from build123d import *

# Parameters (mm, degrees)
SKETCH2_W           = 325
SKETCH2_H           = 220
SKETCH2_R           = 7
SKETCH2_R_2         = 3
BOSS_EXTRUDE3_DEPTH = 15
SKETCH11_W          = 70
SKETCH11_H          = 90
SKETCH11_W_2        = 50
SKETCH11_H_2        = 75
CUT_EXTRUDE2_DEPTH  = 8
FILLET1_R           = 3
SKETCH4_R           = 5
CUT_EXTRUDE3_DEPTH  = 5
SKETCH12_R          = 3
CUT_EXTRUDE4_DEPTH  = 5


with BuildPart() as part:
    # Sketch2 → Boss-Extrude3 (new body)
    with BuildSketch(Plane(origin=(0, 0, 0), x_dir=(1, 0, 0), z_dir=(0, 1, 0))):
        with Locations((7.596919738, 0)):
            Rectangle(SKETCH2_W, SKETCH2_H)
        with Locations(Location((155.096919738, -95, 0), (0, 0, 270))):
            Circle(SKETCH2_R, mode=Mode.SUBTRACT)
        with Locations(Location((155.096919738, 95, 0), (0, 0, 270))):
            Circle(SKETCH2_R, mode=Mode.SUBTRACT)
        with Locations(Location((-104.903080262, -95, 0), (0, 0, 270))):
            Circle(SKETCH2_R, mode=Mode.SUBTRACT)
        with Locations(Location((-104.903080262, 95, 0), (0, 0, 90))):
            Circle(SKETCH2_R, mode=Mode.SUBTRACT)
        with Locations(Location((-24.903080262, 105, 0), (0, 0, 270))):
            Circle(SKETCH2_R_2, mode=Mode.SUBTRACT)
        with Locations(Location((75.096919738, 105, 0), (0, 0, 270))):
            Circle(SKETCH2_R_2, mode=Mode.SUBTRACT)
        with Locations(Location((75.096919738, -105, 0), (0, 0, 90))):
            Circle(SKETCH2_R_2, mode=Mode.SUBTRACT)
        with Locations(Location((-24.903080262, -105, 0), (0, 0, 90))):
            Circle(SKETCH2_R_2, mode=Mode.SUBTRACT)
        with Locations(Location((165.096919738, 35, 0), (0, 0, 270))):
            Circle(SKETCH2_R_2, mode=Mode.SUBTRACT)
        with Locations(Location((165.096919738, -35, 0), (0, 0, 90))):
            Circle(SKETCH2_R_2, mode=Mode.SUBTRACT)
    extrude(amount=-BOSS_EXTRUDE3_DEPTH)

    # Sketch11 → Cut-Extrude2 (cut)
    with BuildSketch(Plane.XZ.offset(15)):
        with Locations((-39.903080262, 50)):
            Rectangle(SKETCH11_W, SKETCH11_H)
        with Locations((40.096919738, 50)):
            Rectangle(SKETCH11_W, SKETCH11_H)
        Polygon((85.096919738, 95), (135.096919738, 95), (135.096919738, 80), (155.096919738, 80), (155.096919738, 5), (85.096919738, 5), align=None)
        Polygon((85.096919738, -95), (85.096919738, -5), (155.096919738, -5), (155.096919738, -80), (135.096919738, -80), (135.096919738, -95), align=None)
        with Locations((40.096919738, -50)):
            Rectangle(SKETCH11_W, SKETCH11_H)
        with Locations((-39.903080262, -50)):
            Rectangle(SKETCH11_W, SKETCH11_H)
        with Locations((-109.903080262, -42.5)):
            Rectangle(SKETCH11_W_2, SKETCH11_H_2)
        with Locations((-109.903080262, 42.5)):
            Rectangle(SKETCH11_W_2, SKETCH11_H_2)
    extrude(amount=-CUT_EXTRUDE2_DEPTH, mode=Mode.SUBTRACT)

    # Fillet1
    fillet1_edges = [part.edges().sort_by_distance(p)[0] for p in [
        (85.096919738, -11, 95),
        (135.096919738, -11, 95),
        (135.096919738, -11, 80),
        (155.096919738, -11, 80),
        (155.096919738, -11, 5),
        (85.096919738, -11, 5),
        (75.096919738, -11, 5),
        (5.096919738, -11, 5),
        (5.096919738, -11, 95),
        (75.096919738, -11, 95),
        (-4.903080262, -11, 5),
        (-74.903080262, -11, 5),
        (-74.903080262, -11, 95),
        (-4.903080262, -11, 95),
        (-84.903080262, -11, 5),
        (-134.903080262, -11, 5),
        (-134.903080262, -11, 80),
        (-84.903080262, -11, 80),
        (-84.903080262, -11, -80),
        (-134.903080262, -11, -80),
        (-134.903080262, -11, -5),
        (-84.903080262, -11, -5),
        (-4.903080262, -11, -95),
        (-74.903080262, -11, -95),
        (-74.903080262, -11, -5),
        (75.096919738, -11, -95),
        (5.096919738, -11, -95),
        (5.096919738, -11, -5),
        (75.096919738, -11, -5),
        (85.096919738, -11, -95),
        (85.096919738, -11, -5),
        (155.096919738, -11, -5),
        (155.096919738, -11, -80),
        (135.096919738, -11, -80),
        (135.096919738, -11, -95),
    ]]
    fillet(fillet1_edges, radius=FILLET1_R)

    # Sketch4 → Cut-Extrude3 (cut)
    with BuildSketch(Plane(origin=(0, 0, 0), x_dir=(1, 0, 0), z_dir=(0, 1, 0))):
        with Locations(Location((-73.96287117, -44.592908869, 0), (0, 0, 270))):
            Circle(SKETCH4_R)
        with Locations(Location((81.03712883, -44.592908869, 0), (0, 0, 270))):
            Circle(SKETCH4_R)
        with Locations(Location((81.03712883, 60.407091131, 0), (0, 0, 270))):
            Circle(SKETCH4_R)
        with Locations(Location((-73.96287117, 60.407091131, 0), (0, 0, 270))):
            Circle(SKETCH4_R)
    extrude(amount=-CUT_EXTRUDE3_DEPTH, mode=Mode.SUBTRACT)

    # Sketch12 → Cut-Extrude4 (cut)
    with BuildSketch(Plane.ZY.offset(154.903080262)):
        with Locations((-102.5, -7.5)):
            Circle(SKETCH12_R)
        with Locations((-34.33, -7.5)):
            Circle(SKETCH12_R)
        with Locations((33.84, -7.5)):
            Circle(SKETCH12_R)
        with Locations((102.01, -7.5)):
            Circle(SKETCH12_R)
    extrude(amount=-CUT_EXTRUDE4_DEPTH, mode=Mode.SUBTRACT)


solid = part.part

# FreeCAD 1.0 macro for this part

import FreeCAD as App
import Part
import Sketcher
from FreeCAD import Vector
Q = App.Units.Quantity


def edges_at(feature, points):
    """Names of the edges that pass closest to the given points."""
    edges = feature.Shape.Edges
    near = lambda p: min(range(len(edges)), key=lambda i: edges[i].distToShape(Part.Vertex(*p))[0])
    return sorted({f"Edge{near(p) + 1}" for p in points})

doc = App.newDocument("Part")
body = doc.addObject("PartDesign::Body", "Body")

sketch1 = body.newObject("Sketcher::SketchObject", "Sketch")
sketch1.AttachmentSupport = (doc.getObject("XZ_Plane"), [""])
sketch1.MapMode = "FlatFace"
sketch1.addGeometry(Part.LineSegment(Vector(-154.9, -110, 0), Vector(-154.9, 110, 0)), False)
sketch1.addGeometry(Part.LineSegment(Vector(-154.9, 110, 0), Vector(170.1, 110, 0)), False)
sketch1.addGeometry(Part.LineSegment(Vector(170.1, 110, 0), Vector(170.1, -110, 0)), False)
sketch1.addGeometry(Part.LineSegment(Vector(170.1, -110, 0), Vector(-154.9, -110, 0)), False)
sketch1.addGeometry(Part.Circle(Vector(-104.9, 95, 0), Vector(0, 0, 1), 7), False)
sketch1.addGeometry(Part.Circle(Vector(-24.9, 105, 0), Vector(0, 0, 1), 3), False)
sketch1.addGeometry(Part.Circle(Vector(75.1, 105, 0), Vector(0, 0, 1), 3), False)
sketch1.addGeometry(Part.Circle(Vector(155.1, 95, 0), Vector(0, 0, 1), 7), False)
sketch1.addGeometry(Part.Circle(Vector(165.1, 35, 0), Vector(0, 0, 1), 3), False)
sketch1.addGeometry(Part.Circle(Vector(-104.9, -95, 0), Vector(0, 0, 1), 7), False)
sketch1.addGeometry(Part.Circle(Vector(-24.9, -105, 0), Vector(0, 0, 1), 3), False)
sketch1.addGeometry(Part.Circle(Vector(165.1, -35, 0), Vector(0, 0, 1), 3), False)
sketch1.addGeometry(Part.Circle(Vector(75.1, -105, 0), Vector(0, 0, 1), 3), False)
sketch1.addGeometry(Part.Circle(Vector(155.1, -95, 0), Vector(0, 0, 1), 7), False)
sketch1.addConstraint(Sketcher.Constraint("Coincident", 0, 2, 1, 1))
sketch1.addConstraint(Sketcher.Constraint("Coincident", 1, 2, 2, 1))
sketch1.addConstraint(Sketcher.Constraint("Coincident", 2, 2, 3, 1))
sketch1.addConstraint(Sketcher.Constraint("Coincident", 3, 2, 0, 1))
sketch1.addConstraint(Sketcher.Constraint("Vertical", 0))
sketch1.addConstraint(Sketcher.Constraint("Horizontal", 1))
sketch1.addConstraint(Sketcher.Constraint("Vertical", 2))
sketch1.addConstraint(Sketcher.Constraint("Horizontal", 3))
sketch1.addConstraint(Sketcher.Constraint("Equal", 5, 6))
sketch1.addConstraint(Sketcher.Constraint("Equal", 4, 7))
sketch1.addConstraint(Sketcher.Constraint("Equal", 6, 8))
sketch1.addConstraint(Sketcher.Constraint("Equal", 7, 9))
sketch1.addConstraint(Sketcher.Constraint("Equal", 8, 10))
sketch1.addConstraint(Sketcher.Constraint("Equal", 10, 11))
sketch1.addConstraint(Sketcher.Constraint("Equal", 11, 12))
sketch1.addConstraint(Sketcher.Constraint("Equal", 9, 13))
sketch1.addConstraint(Sketcher.Constraint("Symmetric", 4, 3, 9, 3, -1))
sketch1.addConstraint(Sketcher.Constraint("Symmetric", 5, 3, 10, 3, -1))
sketch1.addConstraint(Sketcher.Constraint("Symmetric", 8, 3, 11, 3, -1))
sketch1.addConstraint(Sketcher.Constraint("Symmetric", 6, 3, 12, 3, -1))
sketch1.addConstraint(Sketcher.Constraint("Symmetric", 7, 3, 13, 3, -1))
sketch1.addConstraint(Sketcher.Constraint("Horizontal", 5, 3, 6, 3))
sketch1.addConstraint(Sketcher.Constraint("Horizontal", 4, 3, 7, 3))
sketch1.addConstraint(Sketcher.Constraint("Diameter", 4, Q("14 mm")))
sketch1.addConstraint(Sketcher.Constraint("Diameter", 5, Q("6 mm")))
sketch1.addConstraint(Sketcher.Constraint("DistanceX", 1, 1, 1, 2, Q("325 mm")))
sketch1.addConstraint(Sketcher.Constraint("DistanceY", 0, 1, 0, 2, Q("220 mm")))
sketch1.addConstraint(Sketcher.Constraint("DistanceY", -1, 1, 4, 3, Q("95 mm")))
sketch1.addConstraint(Sketcher.Constraint("DistanceY", -1, 1, 5, 3, Q("105 mm")))
sketch1.addConstraint(Sketcher.Constraint("DistanceY", -1, 1, 8, 3, Q("35 mm")))
sketch1.addConstraint(Sketcher.Constraint("DistanceY", -1, 1, 0, 2, Q("110 mm")))
sketch1.addConstraint(Sketcher.Constraint("DistanceX", 4, 3, 5, 3, Q("80 mm")))
sketch1.addConstraint(Sketcher.Constraint("DistanceX", 5, 3, 6, 3, Q("100 mm")))
sketch1.addConstraint(Sketcher.Constraint("DistanceX", 6, 3, 7, 3, Q("80 mm")))
sketch1.addConstraint(Sketcher.Constraint("DistanceX", 7, 3, 8, 3, Q("10 mm")))
sketch1.addConstraint(Sketcher.Constraint("DistanceX", 0, 2, 4, 3, Q("50 mm")))
sketch1.addConstraint(Sketcher.Constraint("DistanceX", 4, 3, -1, 1, Q("104.90308 mm")))
pad1 = body.newObject("PartDesign::Pad", "Pad")
pad1.Profile = sketch1
pad1.Length = 15

sketch2 = body.newObject("Sketcher::SketchObject", "Sketch001")
sketch2.AttachmentSupport = (doc.getObject("XZ_Plane"), [""])
sketch2.MapMode = "FlatFace"
sketch2.AttachmentOffset = App.Placement(Vector(0, 0, 15), App.Rotation())
sketch2.addGeometry(Part.LineSegment(Vector(-75, 95, 0), Vector(-75, 5, 0)), False)
sketch2.addGeometry(Part.LineSegment(Vector(-75, 5, 0), Vector(-5, 5, 0)), False)
sketch2.addGeometry(Part.LineSegment(Vector(-5, 5, 0), Vector(-5, 95, 0)), False)
sketch2.addGeometry(Part.LineSegment(Vector(-5, 95, 0), Vector(-75, 95, 0)), False)
sketch2.addGeometry(Part.LineSegment(Vector(5, 95, 0), Vector(5, 5, 0)), False)
sketch2.addGeometry(Part.LineSegment(Vector(5, 5, 0), Vector(75, 5, 0)), False)
sketch2.addGeometry(Part.LineSegment(Vector(75, 5, 0), Vector(75, 95, 0)), False)
sketch2.addGeometry(Part.LineSegment(Vector(75, 95, 0), Vector(5, 95, 0)), False)
sketch2.addGeometry(Part.LineSegment(Vector(135, 95, 0), Vector(85, 95, 0)), False)
sketch2.addGeometry(Part.LineSegment(Vector(85, 95, 0), Vector(85, 5, 0)), False)
sketch2.addGeometry(Part.LineSegment(Vector(85, 5, 0), Vector(155, 5, 0)), False)
sketch2.addGeometry(Part.LineSegment(Vector(155, 5, 0), Vector(155, 80, 0)), False)
sketch2.addGeometry(Part.LineSegment(Vector(155, 80, 0), Vector(135, 80, 0)), False)
sketch2.addGeometry(Part.LineSegment(Vector(135, 80, 0), Vector(135, 95, 0)), False)
sketch2.addGeometry(Part.LineSegment(Vector(85, -5, 0), Vector(85, -95, 0)), False)
sketch2.addGeometry(Part.LineSegment(Vector(85, -95, 0), Vector(135, -95, 0)), False)
sketch2.addGeometry(Part.LineSegment(Vector(135, -95, 0), Vector(135, -80, 0)), False)
sketch2.addGeometry(Part.LineSegment(Vector(135, -80, 0), Vector(155, -80, 0)), False)
sketch2.addGeometry(Part.LineSegment(Vector(155, -80, 0), Vector(155, -5, 0)), False)
sketch2.addGeometry(Part.LineSegment(Vector(155, -5, 0), Vector(85, -5, 0)), False)
sketch2.addGeometry(Part.LineSegment(Vector(5, -5, 0), Vector(5, -95, 0)), False)
sketch2.addGeometry(Part.LineSegment(Vector(5, -95, 0), Vector(75, -95, 0)), False)
sketch2.addGeometry(Part.LineSegment(Vector(75, -95, 0), Vector(75, -5, 0)), False)
sketch2.addGeometry(Part.LineSegment(Vector(75, -5, 0), Vector(5, -5, 0)), False)
sketch2.addGeometry(Part.LineSegment(Vector(-75, -5, 0), Vector(-75, -95, 0)), False)
sketch2.addGeometry(Part.LineSegment(Vector(-75, -95, 0), Vector(-5, -95, 0)), False)
sketch2.addGeometry(Part.LineSegment(Vector(-5, -95, 0), Vector(-5, -5, 0)), False)
sketch2.addGeometry(Part.LineSegment(Vector(-5, -5, 0), Vector(-75, -5, 0)), False)
sketch2.addGeometry(Part.LineSegment(Vector(-135, -5, 0), Vector(-135, -80, 0)), False)
sketch2.addGeometry(Part.LineSegment(Vector(-135, -80, 0), Vector(-85, -80, 0)), False)
sketch2.addGeometry(Part.LineSegment(Vector(-85, -80, 0), Vector(-85, -5, 0)), False)
sketch2.addGeometry(Part.LineSegment(Vector(-85, -5, 0), Vector(-135, -5, 0)), False)
sketch2.addGeometry(Part.LineSegment(Vector(-135, 80, 0), Vector(-135, 5, 0)), False)
sketch2.addGeometry(Part.LineSegment(Vector(-135, 5, 0), Vector(-85, 5, 0)), False)
sketch2.addGeometry(Part.LineSegment(Vector(-85, 5, 0), Vector(-85, 80, 0)), False)
sketch2.addGeometry(Part.LineSegment(Vector(-85, 80, 0), Vector(-135, 80, 0)), False)
sketch2.addConstraint(Sketcher.Constraint("Coincident", 0, 2, 1, 1))
sketch2.addConstraint(Sketcher.Constraint("Coincident", 1, 2, 2, 1))
sketch2.addConstraint(Sketcher.Constraint("Coincident", 2, 2, 3, 1))
sketch2.addConstraint(Sketcher.Constraint("Coincident", 3, 2, 0, 1))
sketch2.addConstraint(Sketcher.Constraint("Coincident", 4, 2, 5, 1))
sketch2.addConstraint(Sketcher.Constraint("Coincident", 5, 2, 6, 1))
sketch2.addConstraint(Sketcher.Constraint("Coincident", 6, 2, 7, 1))
sketch2.addConstraint(Sketcher.Constraint("Coincident", 7, 2, 4, 1))
sketch2.addConstraint(Sketcher.Constraint("Coincident", 8, 2, 9, 1))
sketch2.addConstraint(Sketcher.Constraint("Coincident", 9, 2, 10, 1))
sketch2.addConstraint(Sketcher.Constraint("Coincident", 10, 2, 11, 1))
sketch2.addConstraint(Sketcher.Constraint("Coincident", 11, 2, 12, 1))
sketch2.addConstraint(Sketcher.Constraint("Coincident", 12, 2, 13, 1))
sketch2.addConstraint(Sketcher.Constraint("Coincident", 13, 2, 8, 1))
sketch2.addConstraint(Sketcher.Constraint("Coincident", 14, 2, 15, 1))
sketch2.addConstraint(Sketcher.Constraint("Coincident", 15, 2, 16, 1))
sketch2.addConstraint(Sketcher.Constraint("Coincident", 16, 2, 17, 1))
sketch2.addConstraint(Sketcher.Constraint("Coincident", 17, 2, 18, 1))
sketch2.addConstraint(Sketcher.Constraint("Coincident", 18, 2, 19, 1))
sketch2.addConstraint(Sketcher.Constraint("Coincident", 19, 2, 14, 1))
sketch2.addConstraint(Sketcher.Constraint("Coincident", 20, 2, 21, 1))
sketch2.addConstraint(Sketcher.Constraint("Coincident", 21, 2, 22, 1))
sketch2.addConstraint(Sketcher.Constraint("Coincident", 22, 2, 23, 1))
sketch2.addConstraint(Sketcher.Constraint("Coincident", 23, 2, 20, 1))
sketch2.addConstraint(Sketcher.Constraint("Coincident", 24, 2, 25, 1))
sketch2.addConstraint(Sketcher.Constraint("Coincident", 25, 2, 26, 1))
sketch2.addConstraint(Sketcher.Constraint("Coincident", 26, 2, 27, 1))
sketch2.addConstraint(Sketcher.Constraint("Coincident", 27, 2, 24, 1))
sketch2.addConstraint(Sketcher.Constraint("Coincident", 28, 2, 29, 1))
sketch2.addConstraint(Sketcher.Constraint("Coincident", 29, 2, 30, 1))
sketch2.addConstraint(Sketcher.Constraint("Coincident", 30, 2, 31, 1))
sketch2.addConstraint(Sketcher.Constraint("Coincident", 31, 2, 28, 1))
sketch2.addConstraint(Sketcher.Constraint("Coincident", 32, 2, 33, 1))
sketch2.addConstraint(Sketcher.Constraint("Coincident", 33, 2, 34, 1))
sketch2.addConstraint(Sketcher.Constraint("Coincident", 34, 2, 35, 1))
sketch2.addConstraint(Sketcher.Constraint("Coincident", 35, 2, 32, 1))
sketch2.addConstraint(Sketcher.Constraint("Vertical", 0))
sketch2.addConstraint(Sketcher.Constraint("Horizontal", 1))
sketch2.addConstraint(Sketcher.Constraint("Vertical", 2))
sketch2.addConstraint(Sketcher.Constraint("Horizontal", 3))
sketch2.addConstraint(Sketcher.Constraint("Vertical", 4))
sketch2.addConstraint(Sketcher.Constraint("Horizontal", 5))
sketch2.addConstraint(Sketcher.Constraint("Vertical", 6))
sketch2.addConstraint(Sketcher.Constraint("Horizontal", 7))
sketch2.addConstraint(Sketcher.Constraint("Horizontal", 8))
sketch2.addConstraint(Sketcher.Constraint("Vertical", 9))
sketch2.addConstraint(Sketcher.Constraint("Horizontal", 10))
sketch2.addConstraint(Sketcher.Constraint("Vertical", 11))
sketch2.addConstraint(Sketcher.Constraint("Horizontal", 12))
sketch2.addConstraint(Sketcher.Constraint("Vertical", 13))
sketch2.addConstraint(Sketcher.Constraint("Vertical", 14))
sketch2.addConstraint(Sketcher.Constraint("Horizontal", 15))
sketch2.addConstraint(Sketcher.Constraint("Vertical", 16))
sketch2.addConstraint(Sketcher.Constraint("Horizontal", 17))
sketch2.addConstraint(Sketcher.Constraint("Vertical", 18))
sketch2.addConstraint(Sketcher.Constraint("Horizontal", 19))
sketch2.addConstraint(Sketcher.Constraint("Vertical", 20))
sketch2.addConstraint(Sketcher.Constraint("Horizontal", 21))
sketch2.addConstraint(Sketcher.Constraint("Vertical", 22))
sketch2.addConstraint(Sketcher.Constraint("Horizontal", 23))
sketch2.addConstraint(Sketcher.Constraint("Vertical", 24))
sketch2.addConstraint(Sketcher.Constraint("Horizontal", 25))
sketch2.addConstraint(Sketcher.Constraint("Vertical", 26))
sketch2.addConstraint(Sketcher.Constraint("Horizontal", 27))
sketch2.addConstraint(Sketcher.Constraint("Vertical", 28))
sketch2.addConstraint(Sketcher.Constraint("Horizontal", 29))
sketch2.addConstraint(Sketcher.Constraint("Vertical", 30))
sketch2.addConstraint(Sketcher.Constraint("Horizontal", 31))
sketch2.addConstraint(Sketcher.Constraint("Vertical", 32))
sketch2.addConstraint(Sketcher.Constraint("Horizontal", 33))
sketch2.addConstraint(Sketcher.Constraint("Vertical", 34))
sketch2.addConstraint(Sketcher.Constraint("Horizontal", 35))
sketch2.addConstraint(Sketcher.Constraint("Symmetric", 8, 2, 14, 2, -1))
sketch2.addConstraint(Sketcher.Constraint("Symmetric", 12, 2, 16, 2, -1))
sketch2.addConstraint(Sketcher.Constraint("Symmetric", 10, 2, 18, 2, -1))
sketch2.addConstraint(Sketcher.Constraint("Symmetric", 7, 2, 20, 2, -1))
sketch2.addConstraint(Sketcher.Constraint("Symmetric", 5, 2, 22, 2, -1))
sketch2.addConstraint(Sketcher.Constraint("Symmetric", 3, 2, 24, 2, -1))
sketch2.addConstraint(Sketcher.Constraint("Symmetric", 1, 2, 26, 2, -1))
sketch2.addConstraint(Sketcher.Constraint("Symmetric", 31, 2, 32, 2, -1))
sketch2.addConstraint(Sketcher.Constraint("Symmetric", 29, 2, 34, 2, -1))
sketch2.addConstraint(Sketcher.Constraint("Horizontal", 1, 2, 4, 2))
sketch2.addConstraint(Sketcher.Constraint("Horizontal", 3, 2, 6, 2))
sketch2.addConstraint(Sketcher.Constraint("Horizontal", 7, 2, 8, 2))
sketch2.addConstraint(Sketcher.Constraint("Horizontal", 5, 2, 9, 2))
sketch2.addConstraint(Sketcher.Constraint("Horizontal", 17, 2, 28, 2))
sketch2.addConstraint(Sketcher.Constraint("Horizontal", 27, 2, 30, 2))
sketch2.addConstraint(Sketcher.Constraint("Equal", 3, 5))
sketch2.addConstraint(Sketcher.Constraint("Equal", 7, 10))
sketch2.addConstraint(Sketcher.Constraint("Equal", 15, 29))
sketch2.addConstraint(Sketcher.Constraint("DistanceX", 1, 1, 1, 2, Q("70 mm")))
sketch2.addConstraint(Sketcher.Constraint("DistanceX", 8, 2, 8, 1, Q("50 mm")))
sketch2.addConstraint(Sketcher.Constraint("DistanceY", 0, 2, 0, 1, Q("90 mm")))
sketch2.addConstraint(Sketcher.Constraint("DistanceY", 11, 1, 11, 2, Q("75 mm")))
sketch2.addConstraint(Sketcher.Constraint("DistanceY", -1, 1, 0, 2, Q("5 mm")))
sketch2.addConstraint(Sketcher.Constraint("DistanceX", 1, 2, 4, 2, Q("10 mm")))
sketch2.addConstraint(Sketcher.Constraint("DistanceX", 6, 2, 8, 2, Q("10 mm")))
sketch2.addConstraint(Sketcher.Constraint("DistanceX", 28, 2, 24, 2, Q("60 mm")))
sketch2.addConstraint(Sketcher.Constraint("DistanceX", 0, 2, -1, 1, Q("74.90308 mm")))
pocket1 = body.newObject("PartDesign::Pocket", "Pocket")
pocket1.Profile = sketch2
pocket1.Length = 8
doc.recompute()

fillet = body.newObject("PartDesign::Fillet", "Fillet")
fillet.Base = (pocket1, edges_at(pocket1, [
    (85.097, -11, 95),
    (135.097, -11, 95),
    (135.097, -11, 80),
    (155.097, -11, 80),
    (155.097, -11, 5),
    (85.097, -11, 5),
    (75.097, -11, 5),
    (5.097, -11, 5),
    (5.097, -11, 95),
    (75.097, -11, 95),
    (-4.903, -11, 5),
    (-74.903, -11, 5),
    (-74.903, -11, 95),
    (-4.903, -11, 95),
    (-84.903, -11, 5),
    (-134.903, -11, 5),
    (-134.903, -11, 80),
    (-84.903, -11, 80),
    (-84.903, -11, -80),
    (-134.903, -11, -80),
    (-134.903, -11, -5),
    (-84.903, -11, -5),
    (-4.903, -11, -95),
    (-74.903, -11, -95),
    (-74.903, -11, -5),
    (75.097, -11, -95),
    (5.097, -11, -95),
    (5.097, -11, -5),
    (75.097, -11, -5),
    (85.097, -11, -95),
    (85.097, -11, -5),
    (155.097, -11, -5),
    (155.097, -11, -80),
    (135.097, -11, -80),
    (135.097, -11, -95),
]))
fillet.Radius = 3

sketch3 = body.newObject("Sketcher::SketchObject", "Sketch002")
sketch3.AttachmentSupport = (doc.getObject("XZ_Plane"), [""])
sketch3.MapMode = "FlatFace"
sketch3.addGeometry(Part.Circle(Vector(-74, 45, 0), Vector(0, 0, 1), 5), False)
sketch3.addGeometry(Part.Circle(Vector(81, 45, 0), Vector(0, 0, 1), 5), False)
sketch3.addGeometry(Part.Circle(Vector(81, -60, 0), Vector(0, 0, 1), 5), False)
sketch3.addGeometry(Part.Circle(Vector(-74, -60, 0), Vector(0, 0, 1), 5), False)
sketch3.addConstraint(Sketcher.Constraint("Equal", 0, 1))
sketch3.addConstraint(Sketcher.Constraint("Equal", 1, 2))
sketch3.addConstraint(Sketcher.Constraint("Equal", 2, 3))
sketch3.addConstraint(Sketcher.Constraint("Horizontal", 0, 3, 1, 3))
sketch3.addConstraint(Sketcher.Constraint("Horizontal", 2, 3, 3, 3))
sketch3.addConstraint(Sketcher.Constraint("Vertical", 1, 3, 2, 3))
sketch3.addConstraint(Sketcher.Constraint("Vertical", 0, 3, 3, 3))
sketch3.addConstraint(Sketcher.Constraint("Diameter", 0, Q("10 mm")))
sketch3.addConstraint(Sketcher.Constraint("DistanceX", 0, 3, 1, 3, Q("155 mm")))
sketch3.addConstraint(Sketcher.Constraint("DistanceY", 2, 3, 1, 3, Q("105 mm")))
sketch3.addConstraint(Sketcher.Constraint("DistanceX", 0, 3, -1, 1, Q("73.962871 mm")))
sketch3.addConstraint(Sketcher.Constraint("DistanceY", -1, 1, 0, 3, Q("44.592909 mm")))
pocket2 = body.newObject("PartDesign::Pocket", "Pocket001")
pocket2.Profile = sketch3
pocket2.Length = 5
pocket2.Reversed = True

sketch4 = body.newObject("Sketcher::SketchObject", "Sketch003")
sketch4.AttachmentSupport = (doc.getObject("YZ_Plane"), [""])
sketch4.MapMode = "FlatFace"
sketch4.AttachmentOffset = App.Placement(Vector(0, 0, -154.90308), App.Rotation())
sketch4.addGeometry(Part.Circle(Vector(-7.5, -102.5, 0), Vector(0, 0, 1), 3), False)
sketch4.addGeometry(Part.Circle(Vector(-7.5, -34.3, 0), Vector(0, 0, 1), 3), False)
sketch4.addGeometry(Part.Circle(Vector(-7.5, 33.8, 0), Vector(0, 0, 1), 3), False)
sketch4.addGeometry(Part.Circle(Vector(-7.5, 102, 0), Vector(0, 0, 1), 3), False)
sketch4.addConstraint(Sketcher.Constraint("Equal", 0, 1))
sketch4.addConstraint(Sketcher.Constraint("Equal", 1, 2))
sketch4.addConstraint(Sketcher.Constraint("Equal", 2, 3))
sketch4.addConstraint(Sketcher.Constraint("Vertical", 0, 3, 1, 3))
sketch4.addConstraint(Sketcher.Constraint("Vertical", 1, 3, 2, 3))
sketch4.addConstraint(Sketcher.Constraint("Vertical", 2, 3, 3, 3))
sketch4.addConstraint(Sketcher.Constraint("Diameter", 0, Q("6 mm")))
sketch4.addConstraint(Sketcher.Constraint("DistanceX", 0, 3, -1, 1, Q("7.5 mm")))
sketch4.addConstraint(Sketcher.Constraint("DistanceY", 0, 3, -1, 1, Q("102.5 mm")))
sketch4.addConstraint(Sketcher.Constraint("DistanceY", 1, 3, -1, 1, Q("34.33 mm")))
sketch4.addConstraint(Sketcher.Constraint("DistanceY", -1, 1, 2, 3, Q("33.84 mm")))
sketch4.addConstraint(Sketcher.Constraint("DistanceY", -1, 1, 3, 3, Q("102.01 mm")))
pocket3 = body.newObject("PartDesign::Pocket", "Pocket002")
pocket3.Profile = sketch4
pocket3.Length = 5
pocket3.Reversed = True

doc.recompute()
